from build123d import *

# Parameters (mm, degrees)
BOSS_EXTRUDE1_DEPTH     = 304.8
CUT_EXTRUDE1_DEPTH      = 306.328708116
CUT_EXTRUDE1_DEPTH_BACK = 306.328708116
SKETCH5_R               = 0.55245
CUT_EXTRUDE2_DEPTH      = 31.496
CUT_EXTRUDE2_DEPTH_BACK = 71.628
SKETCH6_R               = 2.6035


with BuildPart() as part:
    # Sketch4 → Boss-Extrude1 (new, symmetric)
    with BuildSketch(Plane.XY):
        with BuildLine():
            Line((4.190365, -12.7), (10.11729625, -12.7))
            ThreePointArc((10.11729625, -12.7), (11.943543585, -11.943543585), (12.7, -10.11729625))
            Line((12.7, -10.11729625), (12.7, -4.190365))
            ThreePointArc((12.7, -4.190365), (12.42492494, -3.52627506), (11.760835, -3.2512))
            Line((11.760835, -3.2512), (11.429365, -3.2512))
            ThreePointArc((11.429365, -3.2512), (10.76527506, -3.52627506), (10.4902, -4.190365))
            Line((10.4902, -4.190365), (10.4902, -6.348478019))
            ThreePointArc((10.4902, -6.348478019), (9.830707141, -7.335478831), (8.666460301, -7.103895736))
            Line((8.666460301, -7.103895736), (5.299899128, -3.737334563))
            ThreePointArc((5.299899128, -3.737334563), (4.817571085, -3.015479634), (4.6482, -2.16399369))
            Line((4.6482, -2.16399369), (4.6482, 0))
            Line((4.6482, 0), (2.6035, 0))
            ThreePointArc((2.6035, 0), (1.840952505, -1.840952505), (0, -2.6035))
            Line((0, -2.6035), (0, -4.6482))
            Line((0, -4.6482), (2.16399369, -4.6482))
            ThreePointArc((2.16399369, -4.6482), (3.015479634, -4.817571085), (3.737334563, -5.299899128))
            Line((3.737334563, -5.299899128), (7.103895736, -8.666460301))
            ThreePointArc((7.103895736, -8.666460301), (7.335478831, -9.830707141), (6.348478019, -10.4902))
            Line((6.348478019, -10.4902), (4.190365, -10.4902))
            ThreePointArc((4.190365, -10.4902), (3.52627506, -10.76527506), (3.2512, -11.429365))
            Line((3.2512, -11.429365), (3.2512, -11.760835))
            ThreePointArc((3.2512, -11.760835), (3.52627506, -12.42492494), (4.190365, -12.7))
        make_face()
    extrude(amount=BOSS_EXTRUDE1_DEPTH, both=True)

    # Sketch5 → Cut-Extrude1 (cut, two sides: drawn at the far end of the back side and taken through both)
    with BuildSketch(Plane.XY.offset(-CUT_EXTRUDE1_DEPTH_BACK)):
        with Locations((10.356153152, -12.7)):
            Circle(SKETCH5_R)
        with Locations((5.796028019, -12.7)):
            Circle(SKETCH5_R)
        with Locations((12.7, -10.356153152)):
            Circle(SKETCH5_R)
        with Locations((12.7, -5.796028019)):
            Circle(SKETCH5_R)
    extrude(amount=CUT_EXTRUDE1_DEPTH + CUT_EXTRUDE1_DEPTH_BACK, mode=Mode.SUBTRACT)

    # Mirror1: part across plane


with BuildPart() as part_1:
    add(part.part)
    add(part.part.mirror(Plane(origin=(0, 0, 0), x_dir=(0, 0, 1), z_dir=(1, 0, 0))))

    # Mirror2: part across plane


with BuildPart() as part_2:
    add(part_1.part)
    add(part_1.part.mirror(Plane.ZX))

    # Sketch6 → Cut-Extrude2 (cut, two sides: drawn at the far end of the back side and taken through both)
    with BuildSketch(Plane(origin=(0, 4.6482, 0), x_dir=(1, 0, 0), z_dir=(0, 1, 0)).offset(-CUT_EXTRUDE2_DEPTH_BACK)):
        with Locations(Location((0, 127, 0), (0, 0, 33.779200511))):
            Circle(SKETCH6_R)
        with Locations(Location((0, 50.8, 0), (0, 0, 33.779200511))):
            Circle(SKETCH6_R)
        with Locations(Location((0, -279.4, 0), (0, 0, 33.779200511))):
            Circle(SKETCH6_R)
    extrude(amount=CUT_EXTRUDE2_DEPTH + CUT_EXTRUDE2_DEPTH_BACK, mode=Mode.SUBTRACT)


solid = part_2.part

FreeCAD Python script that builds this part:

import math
import FreeCAD as App
import Part
import Sketcher

V = App.Vector
Q = App.Units.Quantity

doc = App.newDocument("Part")
body = doc.addObject("PartDesign::Body", "Body")

sketch1 = body.newObject("Sketcher::SketchObject", "Sketch")
sketch1.AttachmentSupport = (doc.getObject("XY_Plane"), [""])
sketch1.MapMode = "FlatFace"
sketch1.addGeometry([
    Part.LineSegment(V(4.19, -12.7, 0), V(10.12, -12.7, 0)),
    Part.ArcOfCircle(Part.Circle(V(10.12, -10.12, 0), V(0, 0, 1), 2.58), math.radians(-90), math.radians(0)),
    Part.LineSegment(V(12.7, -10.12, 0), V(12.7, -4.19, 0)),
    Part.ArcOfCircle(Part.Circle(V(11.76, -4.19, 0), V(0, 0, 1), 0.94), math.radians(0), math.radians(90)),
    Part.LineSegment(V(11.76, -3.25, 0), V(11.43, -3.25, 0)),
    Part.ArcOfCircle(Part.Circle(V(11.43, -4.19, 0), V(0, 0, 1), 0.94), math.radians(90), math.radians(180)),
    Part.LineSegment(V(10.49, -4.19, 0), V(10.49, -6.35, 0)),
    Part.ArcOfCircle(Part.Circle(V(9.42, -6.35, 0), V(0, 0, 1), 1.07), math.radians(-135), math.radians(0)),
    Part.LineSegment(V(8.67, -7.1, 0), V(5.3, -3.74, 0)),
    Part.ArcOfCircle(Part.Circle(V(6.87, -2.16, 0), V(0, 0, 1), 2.23), math.radians(-180), math.radians(-135)),
    Part.LineSegment(V(4.65, -2.16, 0), V(4.65, 0, 0)),
    Part.LineSegment(V(4.65, 0, 0), V(2.6, 0, 0)),
    Part.ArcOfCircle(Part.Circle(V(0, 0, 0), V(0, 0, 1), 2.6), math.radians(-90), math.radians(0)),
    Part.LineSegment(V(0, -2.6, 0), V(0, -4.65, 0)),
    Part.LineSegment(V(0, -4.65, 0), V(2.16, -4.65, 0)),
    Part.ArcOfCircle(Part.Circle(V(2.16, -6.87, 0), V(0, 0, 1), 2.23), math.radians(45), math.radians(90)),
    Part.LineSegment(V(3.74, -5.3, 0), V(7.1, -8.67, 0)),
    Part.ArcOfCircle(Part.Circle(V(6.35, -9.42, 0), V(0, 0, 1), 1.07), math.radians(-90), math.radians(45)),
    Part.LineSegment(V(6.35, -10.49, 0), V(4.19, -10.49, 0)),
    Part.ArcOfCircle(Part.Circle(V(4.19, -11.43, 0), V(0, 0, 1), 0.94), math.radians(90), math.radians(180)),
    Part.LineSegment(V(3.25, -11.43, 0), V(3.25, -11.76, 0)),
    Part.ArcOfCircle(Part.Circle(V(4.19, -11.76, 0), V(0, 0, 1), 0.94), math.radians(-180), math.radians(-90)),
], False)
sketch1.addConstraint([
    Sketcher.Constraint("Tangent", 0, 2, 1, 1),
    Sketcher.Constraint("Tangent", 1, 2, 2, 1),
    Sketcher.Constraint("Tangent", 2, 2, 3, 1),
    Sketcher.Constraint("Tangent", 3, 2, 4, 1),
    Sketcher.Constraint("Tangent", 4, 2, 5, 1),
    Sketcher.Constraint("Tangent", 5, 2, 6, 1),
    Sketcher.Constraint("Tangent", 6, 2, 7, 2),
    Sketcher.Constraint("Tangent", 7, 1, 8, 1),
    Sketcher.Constraint("Tangent", 8, 2, 9, 2),
    Sketcher.Constraint("Tangent", 9, 1, 10, 1),
    Sketcher.Constraint("Coincident", 10, 2, 11, 1),
    Sketcher.Constraint("Coincident", 11, 2, 12, 2),
    Sketcher.Constraint("Coincident", 12, 1, 13, 1),
    Sketcher.Constraint("Coincident", 13, 2, 14, 1),
    Sketcher.Constraint("Tangent", 14, 2, 15, 2),
    Sketcher.Constraint("Tangent", 15, 1, 16, 1),
    Sketcher.Constraint("Tangent", 16, 2, 17, 2),
    Sketcher.Constraint("Tangent", 17, 1, 18, 1),
    Sketcher.Constraint("Tangent", 18, 2, 19, 1),
    Sketcher.Constraint("Tangent", 19, 2, 20, 1),
    Sketcher.Constraint("Tangent", 20, 2, 21, 1),
    Sketcher.Constraint("Tangent", 21, 2, 0, 1),
    Sketcher.Constraint("Horizontal", 0),
    Sketcher.Constraint("Vertical", 2),
    Sketcher.Constraint("Horizontal", 4),
    Sketcher.Constraint("Vertical", 6),
    Sketcher.Constraint("Vertical", 10),
    Sketcher.Constraint("Horizontal", 11),
    Sketcher.Constraint("Vertical", 13),
    Sketcher.Constraint("Horizontal", 14),
    Sketcher.Constraint("Horizontal", 18),
    Sketcher.Constraint("Vertical", 20),
    Sketcher.Constraint("Coincident", 12, 3, -1, 1),
    Sketcher.Constraint("Equal", 3, 5),
    Sketcher.Constraint("Equal", 9, 15),
    Sketcher.Constraint("Equal", 7, 17),
    Sketcher.Constraint("Equal", 5, 19),
    Sketcher.Constraint("Equal", 19, 21),
    Sketcher.Constraint("PointOnObject", 10, 2, -1),
    Sketcher.Constraint("PointOnObject", 12, 1, -2),
    Sketcher.Constraint("Parallel", 8, 16),
    Sketcher.Constraint("Equal", 0, 2),
    Sketcher.Constraint("Equal", 18, 6),
    Sketcher.Constraint("Equal", 14, 10),
    Sketcher.Constraint("Equal", 11, 13),
    Sketcher.Constraint("Equal", 4, 20),
    Sketcher.Constraint("Equal", 8, 16),
    Sketcher.Constraint("DistanceY", 0, 2, -1, 1, Q("0.5 in")),
    Sketcher.Constraint("Radius", 9, Q("0.0876 in")),
    Sketcher.Constraint("Radius", 12, Q("0.1025 in")),
    Sketcher.Constraint("DistanceX", 9, 1, 5, 2, Q("0.23 in")),
    Sketcher.Constraint("DistanceX", 11, 2, 11, 1, Q("0.0805 in")),
    Sketcher.Constraint("DistanceY", 3, 2, -1, 1, Q("0.128 in")),
    Sketcher.Constraint("Radius", 7, 1.068322),
    Sketcher.Constraint("DistanceX", 17, 3, 7, 3, Q("0.121 in")),
    Sketcher.Constraint("Radius", 1, 2.582704),
    Sketcher.Constraint("Radius", 3, 0.939165),
])
pad1 = body.newObject("PartDesign::Pad", "Pad")
pad1.Profile = sketch1
pad1.Length = Q("24 in")
pad1.Midplane = True

sketch2 = body.newObject("Sketcher::SketchObject", "Sketch001")
sketch2.AttachmentSupport = (doc.getObject("XY_Plane"), [""])
sketch2.MapMode = "FlatFace"
sketch2.addGeometry([
    Part.Circle(V(10.4, -12.7, 0), V(0, 0, 1), 0.6),
    Part.Circle(V(5.8, -12.7, 0), V(0, 0, 1), 0.6),
    Part.Circle(V(12.7, -10.4, 0), V(0, 0, 1), 0.6),
    Part.Circle(V(12.7, -5.8, 0), V(0, 0, 1), 0.6),
], False)
sketch2.addConstraint([
    Sketcher.Constraint("Equal", 0, 1),
    Sketcher.Constraint("Equal", 1, 2),
    Sketcher.Constraint("Equal", 2, 3),
    Sketcher.Constraint("Horizontal", 0, 3, 1, 3),
    Sketcher.Constraint("Vertical", 2, 3, 3, 3),
    Sketcher.Constraint("Diameter", 0, Q("0.0435 in")),
    Sketcher.Constraint("DistanceY", 0, 3, -1, 1, Q("0.5 in")),
    Sketcher.Constraint("DistanceX", -1, 1, 2, 3, Q("0.5 in")),
    Sketcher.Constraint("DistanceX", -1, 1, 1, 3, 5.796028),
    Sketcher.Constraint("DistanceY", 3, 3, -1, 1, 5.796028),
    Sketcher.Constraint("DistanceX", -1, 1, 0, 3, 10.356153),
    Sketcher.Constraint("DistanceY", 2, 3, -1, 1, 10.356153),
])
pocket1 = body.newObject("PartDesign::Pocket", "Pocket")
pocket1.Profile = sketch2
pocket1.Type = "ThroughAll"
pocket1.Midplane = True
body2 = doc.addObject("PartDesign::Body", "Body001")
doc.recompute()

body2.BaseFeature = body
doc.recompute()

mirroring = doc.addObject("Part::Mirroring", "Mirroring")
mirroring.Source = body
mirroring.Base = V(0, 0, 0)
mirroring.Normal = V(1, 0, 0)
body3 = doc.addObject("PartDesign::Body", "Body002")
body3.BaseFeature = mirroring
boolean = body2.newObject("PartDesign::Boolean", "Boolean")
boolean.Type = "Fuse"
boolean.addObjects([body3])
doc.recompute()
body4 = doc.addObject("PartDesign::Body", "Body003")
doc.recompute()

body4.BaseFeature = body2
doc.recompute()

mirroring2 = doc.addObject("Part::Mirroring", "Mirroring001")
mirroring2.Source = body2
mirroring2.Base = V(0, 0, 0)
mirroring2.Normal = V(0, 1, 0)
body5 = doc.addObject("PartDesign::Body", "Body004")
body5.BaseFeature = mirroring2
boolean2 = body4.newObject("PartDesign::Boolean", "Boolean001")
boolean2.Type = "Fuse"
boolean2.addObjects([body5])
doc.recompute()

sketch3 = body4.newObject("Sketcher::SketchObject", "Sketch002")
sketch3.AttachmentSupport = (doc.getObject("XZ_Plane003"), [""])
sketch3.MapMode = "FlatFace"
sketch3.AttachmentOffset = App.Placement(V(0, 0, -0.183 * 25.4), App.Rotation())
sketch3.addGeometry([
    Part.Circle(V(0, -127, 0), V(0, 0, 1), 2.6),
    Part.Circle(V(0, -50.8, 0), V(0, 0, 1), 2.6),
    Part.Circle(V(0, 279.4, 0), V(0, 0, 1), 2.6),
], False)
sketch3.addConstraint([
    Sketcher.Constraint("Equal", 0, 1),
    Sketcher.Constraint("Equal", 1, 2),
    Sketcher.Constraint("PointOnObject", 0, 3, -2),
    Sketcher.Constraint("PointOnObject", 1, 3, -2),
    Sketcher.Constraint("PointOnObject", 2, 3, -2),
    Sketcher.Constraint("Diameter", 0, Q("0.205 in")),
    Sketcher.Constraint("DistanceY", 0, 3, -1, 1, Q("5 in")),
    Sketcher.Constraint("DistanceY", 1, 3, -1, 1, Q("2 in")),
    Sketcher.Constraint("DistanceY", -1, 1, 2, 3, Q("11 in")),
])
pocket2 = body4.newObject("PartDesign::Pocket", "Pocket001")
pocket2.Profile = sketch3
pocket2.Type = "ThroughAll"
pocket2.Midplane = True
mirroring.Visibility = False
mirroring2.Visibility = False

doc.recompute()
